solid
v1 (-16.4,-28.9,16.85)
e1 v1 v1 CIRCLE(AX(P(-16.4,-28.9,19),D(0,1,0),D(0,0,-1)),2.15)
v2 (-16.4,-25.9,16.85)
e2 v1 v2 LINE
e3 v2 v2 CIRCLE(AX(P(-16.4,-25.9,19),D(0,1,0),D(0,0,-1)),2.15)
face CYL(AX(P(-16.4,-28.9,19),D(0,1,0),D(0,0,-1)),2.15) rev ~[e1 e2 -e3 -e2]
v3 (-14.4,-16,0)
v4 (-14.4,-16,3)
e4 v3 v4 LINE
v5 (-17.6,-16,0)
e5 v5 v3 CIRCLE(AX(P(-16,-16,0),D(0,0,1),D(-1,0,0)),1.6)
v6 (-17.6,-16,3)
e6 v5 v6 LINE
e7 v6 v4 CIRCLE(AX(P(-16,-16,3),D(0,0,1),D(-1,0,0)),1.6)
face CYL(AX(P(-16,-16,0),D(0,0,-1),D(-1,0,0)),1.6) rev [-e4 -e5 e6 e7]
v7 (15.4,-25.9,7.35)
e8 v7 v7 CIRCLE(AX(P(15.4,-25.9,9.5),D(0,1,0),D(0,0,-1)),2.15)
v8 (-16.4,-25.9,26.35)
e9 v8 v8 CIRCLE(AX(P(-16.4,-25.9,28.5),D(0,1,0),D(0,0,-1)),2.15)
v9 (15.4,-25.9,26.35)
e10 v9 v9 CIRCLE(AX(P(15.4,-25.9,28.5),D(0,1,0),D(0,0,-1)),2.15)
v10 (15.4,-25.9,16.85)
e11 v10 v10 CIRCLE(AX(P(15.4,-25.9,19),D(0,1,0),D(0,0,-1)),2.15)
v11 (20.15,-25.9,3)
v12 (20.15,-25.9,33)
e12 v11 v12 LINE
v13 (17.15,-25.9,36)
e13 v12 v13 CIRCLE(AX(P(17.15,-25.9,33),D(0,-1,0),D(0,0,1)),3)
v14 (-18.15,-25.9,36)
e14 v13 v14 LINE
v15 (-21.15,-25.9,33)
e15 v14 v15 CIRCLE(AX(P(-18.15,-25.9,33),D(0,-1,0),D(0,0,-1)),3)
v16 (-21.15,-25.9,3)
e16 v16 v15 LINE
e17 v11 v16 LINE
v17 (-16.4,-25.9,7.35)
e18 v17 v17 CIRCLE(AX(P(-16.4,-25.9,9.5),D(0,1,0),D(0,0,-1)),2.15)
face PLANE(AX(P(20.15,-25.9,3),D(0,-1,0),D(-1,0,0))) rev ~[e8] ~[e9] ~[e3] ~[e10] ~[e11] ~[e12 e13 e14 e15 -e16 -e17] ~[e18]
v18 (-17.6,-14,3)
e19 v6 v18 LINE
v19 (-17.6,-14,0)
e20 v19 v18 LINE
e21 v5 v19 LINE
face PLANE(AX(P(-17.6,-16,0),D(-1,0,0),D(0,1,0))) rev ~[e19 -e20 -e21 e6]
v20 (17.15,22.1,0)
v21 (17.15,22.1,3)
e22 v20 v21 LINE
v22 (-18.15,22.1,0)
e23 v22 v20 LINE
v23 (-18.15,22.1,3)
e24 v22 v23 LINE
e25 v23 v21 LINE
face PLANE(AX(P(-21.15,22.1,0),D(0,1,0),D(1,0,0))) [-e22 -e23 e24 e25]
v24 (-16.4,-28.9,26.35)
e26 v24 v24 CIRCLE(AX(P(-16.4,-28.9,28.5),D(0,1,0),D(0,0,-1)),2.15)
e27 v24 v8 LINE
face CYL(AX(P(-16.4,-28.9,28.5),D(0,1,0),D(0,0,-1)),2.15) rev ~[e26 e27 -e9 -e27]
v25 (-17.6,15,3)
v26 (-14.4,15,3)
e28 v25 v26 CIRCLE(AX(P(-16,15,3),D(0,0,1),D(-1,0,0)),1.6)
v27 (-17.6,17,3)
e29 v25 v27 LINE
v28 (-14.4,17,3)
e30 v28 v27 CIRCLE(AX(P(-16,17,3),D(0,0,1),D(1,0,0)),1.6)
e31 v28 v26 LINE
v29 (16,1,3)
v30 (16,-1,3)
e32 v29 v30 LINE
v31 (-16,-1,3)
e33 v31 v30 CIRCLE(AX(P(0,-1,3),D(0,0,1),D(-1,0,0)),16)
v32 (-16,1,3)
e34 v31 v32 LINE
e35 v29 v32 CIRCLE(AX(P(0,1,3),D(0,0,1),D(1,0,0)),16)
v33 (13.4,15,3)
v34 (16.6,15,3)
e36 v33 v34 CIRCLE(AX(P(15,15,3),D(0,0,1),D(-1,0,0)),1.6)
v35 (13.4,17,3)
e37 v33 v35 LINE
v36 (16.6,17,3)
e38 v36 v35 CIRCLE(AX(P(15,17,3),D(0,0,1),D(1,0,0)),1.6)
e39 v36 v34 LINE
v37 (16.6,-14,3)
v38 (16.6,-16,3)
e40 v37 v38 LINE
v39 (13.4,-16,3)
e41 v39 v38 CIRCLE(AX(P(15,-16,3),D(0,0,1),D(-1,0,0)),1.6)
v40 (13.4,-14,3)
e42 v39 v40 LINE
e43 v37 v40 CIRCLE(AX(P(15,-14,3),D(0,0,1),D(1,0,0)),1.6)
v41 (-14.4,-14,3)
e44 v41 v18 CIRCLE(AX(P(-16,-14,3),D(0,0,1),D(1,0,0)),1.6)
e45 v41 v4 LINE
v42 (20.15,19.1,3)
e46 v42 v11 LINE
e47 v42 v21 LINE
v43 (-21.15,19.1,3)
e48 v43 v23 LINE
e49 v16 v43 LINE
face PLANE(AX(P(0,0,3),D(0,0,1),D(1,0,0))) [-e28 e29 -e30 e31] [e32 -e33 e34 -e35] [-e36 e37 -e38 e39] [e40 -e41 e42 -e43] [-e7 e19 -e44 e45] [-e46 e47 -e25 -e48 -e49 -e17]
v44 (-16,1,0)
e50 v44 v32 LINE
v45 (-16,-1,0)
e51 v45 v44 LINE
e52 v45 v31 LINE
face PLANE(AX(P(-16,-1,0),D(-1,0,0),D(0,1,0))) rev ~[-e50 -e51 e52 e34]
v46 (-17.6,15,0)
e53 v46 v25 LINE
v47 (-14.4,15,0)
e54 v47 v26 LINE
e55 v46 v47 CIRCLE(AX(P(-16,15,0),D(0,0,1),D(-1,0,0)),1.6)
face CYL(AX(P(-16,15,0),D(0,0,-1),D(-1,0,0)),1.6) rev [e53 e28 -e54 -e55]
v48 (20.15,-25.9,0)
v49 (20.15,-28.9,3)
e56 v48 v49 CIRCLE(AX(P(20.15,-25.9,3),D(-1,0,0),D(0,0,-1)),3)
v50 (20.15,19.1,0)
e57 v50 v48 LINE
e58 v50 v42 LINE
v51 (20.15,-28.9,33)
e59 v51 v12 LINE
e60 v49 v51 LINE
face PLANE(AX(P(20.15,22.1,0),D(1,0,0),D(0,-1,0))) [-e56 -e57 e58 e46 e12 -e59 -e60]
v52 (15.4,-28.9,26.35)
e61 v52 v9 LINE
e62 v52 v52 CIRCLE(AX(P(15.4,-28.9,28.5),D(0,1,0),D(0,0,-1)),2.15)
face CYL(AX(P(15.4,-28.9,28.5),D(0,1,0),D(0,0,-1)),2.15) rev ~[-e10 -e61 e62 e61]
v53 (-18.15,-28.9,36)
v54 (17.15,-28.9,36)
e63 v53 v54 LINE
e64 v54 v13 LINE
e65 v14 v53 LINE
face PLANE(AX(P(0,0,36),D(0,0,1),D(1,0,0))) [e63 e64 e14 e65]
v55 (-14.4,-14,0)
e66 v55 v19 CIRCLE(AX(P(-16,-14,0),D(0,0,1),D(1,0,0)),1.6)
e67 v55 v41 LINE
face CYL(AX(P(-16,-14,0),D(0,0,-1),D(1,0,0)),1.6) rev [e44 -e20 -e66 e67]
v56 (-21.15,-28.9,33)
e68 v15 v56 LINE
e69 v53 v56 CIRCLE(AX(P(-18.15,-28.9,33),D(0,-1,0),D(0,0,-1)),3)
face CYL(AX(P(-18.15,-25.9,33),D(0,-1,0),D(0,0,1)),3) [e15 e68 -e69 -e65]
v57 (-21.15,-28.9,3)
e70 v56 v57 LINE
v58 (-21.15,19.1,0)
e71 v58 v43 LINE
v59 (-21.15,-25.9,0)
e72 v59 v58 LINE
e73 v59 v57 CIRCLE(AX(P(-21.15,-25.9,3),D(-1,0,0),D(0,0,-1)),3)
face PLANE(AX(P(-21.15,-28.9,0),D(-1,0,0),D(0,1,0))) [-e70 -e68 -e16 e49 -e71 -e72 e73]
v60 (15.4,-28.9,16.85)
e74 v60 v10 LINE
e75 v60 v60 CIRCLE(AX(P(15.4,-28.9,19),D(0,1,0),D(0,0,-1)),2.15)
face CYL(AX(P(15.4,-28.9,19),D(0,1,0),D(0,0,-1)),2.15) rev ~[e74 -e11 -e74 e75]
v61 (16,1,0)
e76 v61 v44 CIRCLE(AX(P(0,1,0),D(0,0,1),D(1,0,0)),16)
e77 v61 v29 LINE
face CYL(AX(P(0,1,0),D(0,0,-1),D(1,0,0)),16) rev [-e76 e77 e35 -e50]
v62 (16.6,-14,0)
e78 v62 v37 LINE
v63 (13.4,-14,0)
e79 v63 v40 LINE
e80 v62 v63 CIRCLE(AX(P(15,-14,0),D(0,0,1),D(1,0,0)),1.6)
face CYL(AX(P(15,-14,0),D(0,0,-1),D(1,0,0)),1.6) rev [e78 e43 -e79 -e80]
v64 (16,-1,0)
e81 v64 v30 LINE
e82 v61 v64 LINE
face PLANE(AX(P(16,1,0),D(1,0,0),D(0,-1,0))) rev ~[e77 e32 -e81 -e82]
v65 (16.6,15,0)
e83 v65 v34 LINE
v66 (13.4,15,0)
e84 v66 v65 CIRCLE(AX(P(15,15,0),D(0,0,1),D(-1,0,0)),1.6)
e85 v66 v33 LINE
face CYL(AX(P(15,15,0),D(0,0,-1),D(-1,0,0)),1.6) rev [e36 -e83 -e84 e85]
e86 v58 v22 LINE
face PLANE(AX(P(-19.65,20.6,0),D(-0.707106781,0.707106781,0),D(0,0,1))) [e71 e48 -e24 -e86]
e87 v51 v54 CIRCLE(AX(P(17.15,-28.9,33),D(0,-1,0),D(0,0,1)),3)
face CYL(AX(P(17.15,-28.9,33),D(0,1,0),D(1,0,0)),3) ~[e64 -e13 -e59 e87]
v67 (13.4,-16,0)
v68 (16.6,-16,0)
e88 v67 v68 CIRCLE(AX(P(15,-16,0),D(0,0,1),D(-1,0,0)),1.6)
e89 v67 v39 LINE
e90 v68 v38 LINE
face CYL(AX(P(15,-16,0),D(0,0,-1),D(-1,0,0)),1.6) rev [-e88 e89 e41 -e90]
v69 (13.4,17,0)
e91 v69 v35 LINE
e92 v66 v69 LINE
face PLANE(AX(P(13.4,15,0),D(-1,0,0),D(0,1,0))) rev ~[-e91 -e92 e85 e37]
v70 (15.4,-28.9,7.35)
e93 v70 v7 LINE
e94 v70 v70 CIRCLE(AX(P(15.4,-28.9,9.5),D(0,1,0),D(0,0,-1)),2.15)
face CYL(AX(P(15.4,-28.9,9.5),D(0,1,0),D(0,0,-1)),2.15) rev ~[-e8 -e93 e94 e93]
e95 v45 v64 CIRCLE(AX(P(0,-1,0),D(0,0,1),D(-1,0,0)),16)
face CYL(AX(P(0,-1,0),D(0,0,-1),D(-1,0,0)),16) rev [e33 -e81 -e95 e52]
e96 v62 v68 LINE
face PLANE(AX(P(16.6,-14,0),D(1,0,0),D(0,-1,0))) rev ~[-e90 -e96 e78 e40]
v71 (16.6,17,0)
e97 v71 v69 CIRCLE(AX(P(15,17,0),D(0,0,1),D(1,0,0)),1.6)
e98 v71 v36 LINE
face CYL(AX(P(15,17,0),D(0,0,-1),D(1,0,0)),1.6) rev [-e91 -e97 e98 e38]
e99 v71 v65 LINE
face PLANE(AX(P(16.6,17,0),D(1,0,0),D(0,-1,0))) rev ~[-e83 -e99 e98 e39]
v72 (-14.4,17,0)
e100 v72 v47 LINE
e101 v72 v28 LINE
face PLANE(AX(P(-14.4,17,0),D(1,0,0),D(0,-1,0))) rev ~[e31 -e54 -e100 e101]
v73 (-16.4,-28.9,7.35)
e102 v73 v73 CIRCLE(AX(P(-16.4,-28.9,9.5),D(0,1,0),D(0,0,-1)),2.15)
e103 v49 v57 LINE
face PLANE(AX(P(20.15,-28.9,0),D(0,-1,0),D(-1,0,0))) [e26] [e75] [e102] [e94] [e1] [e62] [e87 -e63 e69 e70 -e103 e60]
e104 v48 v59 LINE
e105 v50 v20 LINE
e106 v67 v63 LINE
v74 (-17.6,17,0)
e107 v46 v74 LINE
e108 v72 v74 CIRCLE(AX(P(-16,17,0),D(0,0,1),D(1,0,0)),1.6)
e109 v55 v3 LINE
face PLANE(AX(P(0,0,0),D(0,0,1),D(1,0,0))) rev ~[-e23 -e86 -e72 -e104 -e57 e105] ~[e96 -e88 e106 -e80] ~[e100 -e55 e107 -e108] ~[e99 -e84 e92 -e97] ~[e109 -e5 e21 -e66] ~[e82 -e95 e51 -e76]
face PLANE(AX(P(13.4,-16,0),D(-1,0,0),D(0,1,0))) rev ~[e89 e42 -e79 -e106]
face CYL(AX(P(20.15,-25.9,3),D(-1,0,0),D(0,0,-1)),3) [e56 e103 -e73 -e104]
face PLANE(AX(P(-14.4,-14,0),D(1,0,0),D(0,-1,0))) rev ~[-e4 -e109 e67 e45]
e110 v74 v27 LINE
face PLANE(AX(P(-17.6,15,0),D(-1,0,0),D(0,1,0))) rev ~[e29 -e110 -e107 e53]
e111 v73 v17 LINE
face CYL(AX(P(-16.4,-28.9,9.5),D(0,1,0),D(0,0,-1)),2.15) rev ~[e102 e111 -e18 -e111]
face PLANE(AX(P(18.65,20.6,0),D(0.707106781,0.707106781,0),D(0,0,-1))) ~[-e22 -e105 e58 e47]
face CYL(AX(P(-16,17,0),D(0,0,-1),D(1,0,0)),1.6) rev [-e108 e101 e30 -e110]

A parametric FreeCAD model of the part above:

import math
import FreeCAD as App
import Part
import Sketcher
Q = App.Units.Quantity


def edges_at(feature, points):
    """Names of the edges that pass closest to the given points."""
    edges = feature.Shape.Edges
    near = lambda p: min(range(len(edges)), key=lambda i: edges[i].distToShape(Part.Vertex(*p))[0])
    return sorted({f"Edge{near(p) + 1}" for p in points})


def add_polygon(sketch, points):
    """Adds a closed chain of lines whose ends are joined by coincident constraints."""
    first, n = sketch.GeometryCount, len(points)
    for a, b in zip(points, points[1:] + points[:1]):
        sketch.addGeometry(Part.LineSegment(App.Vector(*a, 0), App.Vector(*b, 0)), False)
    for i in range(n):
        sketch.addConstraint(Sketcher.Constraint("Coincident", first + i, 2, first + (i + 1) % n, 1))

doc = App.newDocument("Part")
body = doc.addObject("PartDesign::Body", "Body")

# Sketch on XY plane
sketch1 = body.newObject("Sketcher::SketchObject", "Sketch")
sketch1.AttachmentSupport = (doc.getObject("XY_Plane"), [""])
sketch1.MapMode = "FlatFace"
add_polygon(sketch1, [(-21.1, -28.9), (20.1, -28.9), (20.1, 22.1), (-21.1, 22.1)])  # lines 0-3
sketch1.addGeometry(Part.ArcOfCircle(Part.Circle(App.Vector(-16, -14, 0), App.Vector(0, 0, 1), 1.6), math.radians(0), math.radians(180)), False)  # 4
sketch1.addGeometry(Part.LineSegment(App.Vector(-14.4, -14, 0), App.Vector(-14.4, -16, 0)), False)  # 5
sketch1.addGeometry(Part.ArcOfCircle(Part.Circle(App.Vector(-16, -16, 0), App.Vector(0, 0, 1), 1.6), math.radians(180), math.radians(360)), False)  # 6
sketch1.addGeometry(Part.LineSegment(App.Vector(-17.6, -16, 0), App.Vector(-17.6, -14, 0)), False)  # 7
sketch1.addGeometry(Part.ArcOfCircle(Part.Circle(App.Vector(15, -14, 0), App.Vector(0, 0, 1), 1.6), math.radians(0), math.radians(180)), False)  # 8
sketch1.addGeometry(Part.LineSegment(App.Vector(16.6, -14, 0), App.Vector(16.6, -16, 0)), False)  # 9
sketch1.addGeometry(Part.ArcOfCircle(Part.Circle(App.Vector(15, -16, 0), App.Vector(0, 0, 1), 1.6), math.radians(180), math.radians(360)), False)  # 10
sketch1.addGeometry(Part.LineSegment(App.Vector(13.4, -16, 0), App.Vector(13.4, -14, 0)), False)  # 11
sketch1.addGeometry(Part.ArcOfCircle(Part.Circle(App.Vector(-16, 17, 0), App.Vector(0, 0, 1), 1.6), math.radians(0), math.radians(180)), False)  # 12
sketch1.addGeometry(Part.LineSegment(App.Vector(-14.4, 17, 0), App.Vector(-14.4, 15, 0)), False)  # 13
sketch1.addGeometry(Part.ArcOfCircle(Part.Circle(App.Vector(-16, 15, 0), App.Vector(0, 0, 1), 1.6), math.radians(180), math.radians(360)), False)  # 14
sketch1.addGeometry(Part.LineSegment(App.Vector(-17.6, 15, 0), App.Vector(-17.6, 17, 0)), False)  # 15
sketch1.addGeometry(Part.ArcOfCircle(Part.Circle(App.Vector(0, -1, 0), App.Vector(0, 0, 1), 16), math.radians(180), math.radians(360)), False)  # 16
sketch1.addGeometry(Part.LineSegment(App.Vector(-16, -1, 0), App.Vector(-16, 1, 0)), False)  # 17
sketch1.addGeometry(Part.ArcOfCircle(Part.Circle(App.Vector(0, 1, 0), App.Vector(0, 0, 1), 16), math.radians(0), math.radians(180)), False)  # 18
sketch1.addGeometry(Part.LineSegment(App.Vector(16, 1, 0), App.Vector(16, -1, 0)), False)  # 19
sketch1.addGeometry(Part.ArcOfCircle(Part.Circle(App.Vector(15, 17, 0), App.Vector(0, 0, 1), 1.6), math.radians(0), math.radians(180)), False)  # 20
sketch1.addGeometry(Part.LineSegment(App.Vector(16.6, 17, 0), App.Vector(16.6, 15, 0)), False)  # 21
sketch1.addGeometry(Part.ArcOfCircle(Part.Circle(App.Vector(15, 15, 0), App.Vector(0, 0, 1), 1.6), math.radians(180), math.radians(360)), False)  # 22
sketch1.addGeometry(Part.LineSegment(App.Vector(13.4, 15, 0), App.Vector(13.4, 17, 0)), False)  # 23
sketch1.addConstraint(Sketcher.Constraint("Tangent", 4, 1, 5, 1))
sketch1.addConstraint(Sketcher.Constraint("Tangent", 5, 2, 6, 2))
sketch1.addConstraint(Sketcher.Constraint("Tangent", 6, 1, 7, 1))
sketch1.addConstraint(Sketcher.Constraint("Tangent", 7, 2, 4, 2))
sketch1.addConstraint(Sketcher.Constraint("Tangent", 8, 1, 9, 1))
sketch1.addConstraint(Sketcher.Constraint("Tangent", 9, 2, 10, 2))
sketch1.addConstraint(Sketcher.Constraint("Tangent", 10, 1, 11, 1))
sketch1.addConstraint(Sketcher.Constraint("Tangent", 11, 2, 8, 2))
sketch1.addConstraint(Sketcher.Constraint("Tangent", 12, 1, 13, 1))
sketch1.addConstraint(Sketcher.Constraint("Tangent", 13, 2, 14, 2))
sketch1.addConstraint(Sketcher.Constraint("Tangent", 14, 1, 15, 1))
sketch1.addConstraint(Sketcher.Constraint("Tangent", 15, 2, 12, 2))
sketch1.addConstraint(Sketcher.Constraint("Tangent", 16, 1, 17, 1))
sketch1.addConstraint(Sketcher.Constraint("Tangent", 17, 2, 18, 2))
sketch1.addConstraint(Sketcher.Constraint("Tangent", 18, 1, 19, 1))
sketch1.addConstraint(Sketcher.Constraint("Tangent", 19, 2, 16, 2))
sketch1.addConstraint(Sketcher.Constraint("Tangent", 20, 1, 21, 1))
sketch1.addConstraint(Sketcher.Constraint("Tangent", 21, 2, 22, 2))
sketch1.addConstraint(Sketcher.Constraint("Tangent", 22, 1, 23, 1))
sketch1.addConstraint(Sketcher.Constraint("Tangent", 23, 2, 20, 2))
sketch1.addConstraint(Sketcher.Constraint("Horizontal", 0))
sketch1.addConstraint(Sketcher.Constraint("Vertical", 1))
sketch1.addConstraint(Sketcher.Constraint("Horizontal", 2))
sketch1.addConstraint(Sketcher.Constraint("Vertical", 3))
sketch1.addConstraint(Sketcher.Constraint("Vertical", 5))
sketch1.addConstraint(Sketcher.Constraint("Vertical", 7))
sketch1.addConstraint(Sketcher.Constraint("Vertical", 9))
sketch1.addConstraint(Sketcher.Constraint("Vertical", 11))
sketch1.addConstraint(Sketcher.Constraint("Vertical", 13))
sketch1.addConstraint(Sketcher.Constraint("Vertical", 15))
sketch1.addConstraint(Sketcher.Constraint("Vertical", 17))
sketch1.addConstraint(Sketcher.Constraint("Vertical", 19))
sketch1.addConstraint(Sketcher.Constraint("Vertical", 21))
sketch1.addConstraint(Sketcher.Constraint("Vertical", 23))
sketch1.addConstraint(Sketcher.Constraint("Equal", 6, 8))
sketch1.addConstraint(Sketcher.Constraint("Equal", 10, 12))
sketch1.addConstraint(Sketcher.Constraint("Equal", 14, 20))
sketch1.addConstraint(Sketcher.Constraint("Symmetric", 16, 3, 18, 3, -1, 1))
sketch1.addConstraint(Sketcher.Constraint("Horizontal", 4, 3, 8, 3))
sketch1.addConstraint(Sketcher.Constraint("Horizontal", 6, 3, 10, 3))
sketch1.addConstraint(Sketcher.Constraint("Horizontal", 12, 3, 20, 3))
sketch1.addConstraint(Sketcher.Constraint("Horizontal", 14, 3, 22, 3))
sketch1.addConstraint(Sketcher.Constraint("Vertical", 6, 3, 12, 3))
sketch1.addConstraint(Sketcher.Constraint("Vertical", 10, 3, 20, 3))
sketch1.addConstraint(Sketcher.Constraint("Vertical", 14, 3, 16, 1))
sketch1.addConstraint(Sketcher.Constraint("Equal", 11, 13))
sketch1.addConstraint(Sketcher.Constraint("Equal", 15, 17))
sketch1.addConstraint(Sketcher.Constraint("Radius", 16, Q("16 mm")))
sketch1.addConstraint(Sketcher.Constraint("Radius", 4, Q("1.6 mm")))
sketch1.addConstraint(Sketcher.Constraint("DistanceY", 1, 1, 1, 2, Q("51 mm")))
sketch1.addConstraint(Sketcher.Constraint("DistanceY", 5, 2, 5, 1, Q("2 mm")))
sketch1.addConstraint(Sketcher.Constraint("DistanceX", 0, 1, 0, 2, Q("41.3 mm")))
sketch1.addConstraint(Sketcher.Constraint("DistanceY", 6, 3, -1, 1, Q("16 mm")))
sketch1.addConstraint(Sketcher.Constraint("DistanceX", 4, 3, 8, 3, Q("31 mm")))
sketch1.addConstraint(Sketcher.Constraint("DistanceY", 4, 3, 12, 3, Q("31 mm")))
sketch1.addConstraint(Sketcher.Constraint("DistanceY", 0, 2, 8, 3, Q("14.9 mm")))
sketch1.addConstraint(Sketcher.Constraint("DistanceX", 10, 3, 0, 2, Q("5.15 mm")))
pad1 = body.newObject("PartDesign::Pad", "Pad")
pad1.Profile = sketch1
pad1.Length = 3

# Sketch on XY plane
sketch2 = body.newObject("Sketcher::SketchObject", "Sketch001")
sketch2.AttachmentSupport = (doc.getObject("XY_Plane"), [""])
sketch2.MapMode = "FlatFace"
sketch2.AttachmentOffset = App.Placement(App.Vector(0, 0, 3), App.Rotation())
add_polygon(sketch2, [(-21.1, -25.9), (-21.1, -28.9), (20.1, -28.9), (20.1, -25.9)])  # lines 0-3
sketch2.addConstraint(Sketcher.Constraint("Vertical", 0))
sketch2.addConstraint(Sketcher.Constraint("Horizontal", 1))
sketch2.addConstraint(Sketcher.Constraint("Vertical", 2))
sketch2.addConstraint(Sketcher.Constraint("Horizontal", 3))
sketch2.addConstraint(Sketcher.Constraint("DistanceY", 0, 2, 0, 1, Q("3 mm")))
sketch2.addConstraint(Sketcher.Constraint("DistanceX", 1, 1, 1, 2, Q("41.3 mm")))
sketch2.addConstraint(Sketcher.Constraint("DistanceY", 0, 2, -1, 1, Q("28.9 mm")))
sketch2.addConstraint(Sketcher.Constraint("DistanceX", 0, 2, -1, 1, Q("21.15 mm")))
pad2 = body.newObject("PartDesign::Pad", "Pad001")
pad2.Profile = sketch2
pad2.Length = 33

# Sketch on XZ plane
sketch3 = body.newObject("Sketcher::SketchObject", "Sketch002")
sketch3.AttachmentSupport = (doc.getObject("XZ_Plane"), [""])
sketch3.MapMode = "FlatFace"
sketch3.AttachmentOffset = App.Placement(App.Vector(0, 0, 28.9), App.Rotation())
sketch3.addGeometry(Part.Circle(App.Vector(-16.4, 9.5, 0), App.Vector(0, 0, 1), 2.1), False)
sketch3.addGeometry(Part.Circle(App.Vector(-16.4, 19, 0), App.Vector(0, 0, 1), 2.1), False)
sketch3.addGeometry(Part.Circle(App.Vector(15.4, 9.5, 0), App.Vector(0, 0, 1), 2.1), False)
sketch3.addGeometry(Part.Circle(App.Vector(15.4, 19, 0), App.Vector(0, 0, 1), 2.1), False)
sketch3.addGeometry(Part.Circle(App.Vector(15.4, 28.5, 0), App.Vector(0, 0, 1), 2.1), False)
sketch3.addGeometry(Part.Circle(App.Vector(-16.4, 28.5, 0), App.Vector(0, 0, 1), 2.1), False)
sketch3.addConstraint(Sketcher.Constraint("Equal", 0, 1))
sketch3.addConstraint(Sketcher.Constraint("Equal", 1, 2))
sketch3.addConstraint(Sketcher.Constraint("Equal", 2, 3))
sketch3.addConstraint(Sketcher.Constraint("Equal", 3, 4))
sketch3.addConstraint(Sketcher.Constraint("Equal", 4, 5))
sketch3.addConstraint(Sketcher.Constraint("Horizontal", 0, 3, 2, 3))
sketch3.addConstraint(Sketcher.Constraint("Horizontal", 1, 3, 3, 3))
sketch3.addConstraint(Sketcher.Constraint("Horizontal", 4, 3, 5, 3))
sketch3.addConstraint(Sketcher.Constraint("Vertical", 0, 3, 1, 3))
sketch3.addConstraint(Sketcher.Constraint("Vertical", 2, 3, 3, 3))
sketch3.addConstraint(Sketcher.Constraint("Vertical", 3, 3, 4, 3))
sketch3.addConstraint(Sketcher.Constraint("Vertical", 1, 3, 5, 3))
sketch3.addConstraint(Sketcher.Constraint("Diameter", 0, Q("4.3 mm")))
sketch3.addConstraint(Sketcher.Constraint("DistanceY", -1, 1, 1, 3, Q("19 mm")))
sketch3.addConstraint(Sketcher.Constraint("DistanceY", 2, 3, 4, 3, Q("19 mm")))
sketch3.addConstraint(Sketcher.Constraint("DistanceX", 0, 3, -1, 1, Q("16.4 mm")))
sketch3.addConstraint(Sketcher.Constraint("DistanceY", -1, 1, 0, 3, Q("9.5 mm")))
sketch3.addConstraint(Sketcher.Constraint("DistanceX", -1, 1, 2, 3, Q("15.4 mm")))
doc.recompute()
hole = body.newObject("PartDesign::Hole", "Hole")
hole.Profile = sketch3
hole.ThreadType = "None"
hole.Diameter = 4.3
hole.DepthType = "ThroughAll"
doc.recompute()

chamfer = body.newObject("PartDesign::Chamfer", "Chamfer")
chamfer.Base = (hole, edges_at(hole, [(20.15, 22.1, 1.5), (-21.15, 22.1, 1.5)]))
chamfer.Size = 3
doc.recompute()

fillet = body.newObject("PartDesign::Fillet", "Fillet")
fillet.Base = (chamfer, edges_at(chamfer, [(-21.15, -27.4, 36), (20.15, -27.4, 36), (-0.5, -28.9, 0)]))
fillet.Radius = 3

doc.recompute()
